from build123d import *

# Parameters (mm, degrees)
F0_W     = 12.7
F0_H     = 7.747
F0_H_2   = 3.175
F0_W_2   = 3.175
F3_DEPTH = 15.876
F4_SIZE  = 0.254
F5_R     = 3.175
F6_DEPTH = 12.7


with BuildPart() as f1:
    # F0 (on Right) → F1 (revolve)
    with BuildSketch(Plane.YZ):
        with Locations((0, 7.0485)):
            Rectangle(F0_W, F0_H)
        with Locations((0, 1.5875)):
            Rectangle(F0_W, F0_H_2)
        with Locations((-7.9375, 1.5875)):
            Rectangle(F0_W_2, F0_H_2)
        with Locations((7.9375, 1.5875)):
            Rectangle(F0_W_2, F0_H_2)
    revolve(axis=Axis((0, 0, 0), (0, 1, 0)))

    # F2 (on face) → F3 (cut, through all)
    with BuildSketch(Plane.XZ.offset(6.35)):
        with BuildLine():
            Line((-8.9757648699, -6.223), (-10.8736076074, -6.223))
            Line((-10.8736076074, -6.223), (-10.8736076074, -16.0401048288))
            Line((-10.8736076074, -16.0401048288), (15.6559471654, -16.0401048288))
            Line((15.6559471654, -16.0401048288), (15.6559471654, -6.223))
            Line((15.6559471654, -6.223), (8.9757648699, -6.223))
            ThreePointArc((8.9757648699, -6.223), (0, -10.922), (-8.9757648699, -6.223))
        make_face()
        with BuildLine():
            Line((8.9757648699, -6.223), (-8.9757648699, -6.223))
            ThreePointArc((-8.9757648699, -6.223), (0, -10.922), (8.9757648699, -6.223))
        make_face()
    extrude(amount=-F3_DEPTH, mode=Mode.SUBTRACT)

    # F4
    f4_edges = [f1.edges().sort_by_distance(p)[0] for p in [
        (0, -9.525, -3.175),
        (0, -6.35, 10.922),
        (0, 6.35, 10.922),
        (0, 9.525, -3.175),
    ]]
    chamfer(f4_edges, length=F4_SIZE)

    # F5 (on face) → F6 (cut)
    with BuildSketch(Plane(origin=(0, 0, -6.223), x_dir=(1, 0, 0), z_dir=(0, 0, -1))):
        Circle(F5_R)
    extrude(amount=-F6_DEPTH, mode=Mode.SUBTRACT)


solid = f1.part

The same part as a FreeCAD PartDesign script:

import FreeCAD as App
import Part
import Sketcher

V = App.Vector
Q = App.Units.Quantity


def edges_at(feature, points):
    """Names of the edges that pass closest to the given points."""
    edges = feature.Shape.Edges
    near = lambda p: min(range(len(edges)), key=lambda i: edges[i].distToShape(Part.Vertex(*p))[0])
    return sorted({f"Edge{near(p) + 1}" for p in points})

doc = App.newDocument("Part")
params = doc.addObject("Spreadsheet::Sheet", "Params")
for row, (alias, value) in enumerate([
    ("sketch1_width", "0.5 in"),
    ("sketch1_width2", "0.75 in"),
    ("sketch1_height", "0.305 in"),
    ("revolution_angle", "360 deg"),
    ("chamfer_size", "0.01 in"),
    ("sketch3_diameter", "0.25 in"),
    ("pocket2_length", "0.5 in"),
], start=1):
    params.set(f"A{row}", alias)
    params.set(f"B{row}", "=" + value)
    params.setAlias(f"B{row}", alias)

body = doc.addObject("PartDesign::Body", "Body")

# Sketch on YZ plane
sketch1 = body.newObject("Sketcher::SketchObject", "Sketch")
sketch1.AttachmentSupport = (doc.getObject("YZ_Plane"), [""])
sketch1.MapMode = "FlatFace"
sketch1.addGeometry([
    Part.LineSegment(V(-6.3, 10.9, 0), V(-6.3, 3.2, 0)),  # 0
    Part.LineSegment(V(-6.3, 3.2, 0), V(-9.5, 3.2, 0)),  # 1
    Part.LineSegment(V(-9.5, 3.2, 0), V(-9.5, 0, 0)),  # 2
    Part.LineSegment(V(-9.5, 0, 0), V(9.5, 0, 0)),  # 3
    Part.LineSegment(V(9.5, 0, 0), V(9.5, 3.2, 0)),  # 4
    Part.LineSegment(V(9.5, 3.2, 0), V(6.3, 3.2, 0)),  # 5
    Part.LineSegment(V(6.3, 3.2, 0), V(6.3, 10.9, 0)),  # 6
    Part.LineSegment(V(6.3, 10.9, 0), V(-6.3, 10.9, 0)),  # 7
], False)
sketch1.addConstraint([
    Sketcher.Constraint("Coincident", 0, 2, 1, 1),
    Sketcher.Constraint("Coincident", 1, 2, 2, 1),
    Sketcher.Constraint("Coincident", 2, 2, 3, 1),
    Sketcher.Constraint("Coincident", 3, 2, 4, 1),
    Sketcher.Constraint("Coincident", 4, 2, 5, 1),
    Sketcher.Constraint("Coincident", 5, 2, 6, 1),
    Sketcher.Constraint("Coincident", 6, 2, 7, 1),
    Sketcher.Constraint("Coincident", 7, 2, 0, 1),
    Sketcher.Constraint("Vertical", 0),
    Sketcher.Constraint("Horizontal", 1),
    Sketcher.Constraint("Vertical", 2),
    Sketcher.Constraint("Horizontal", 3),
    Sketcher.Constraint("Vertical", 4),
    Sketcher.Constraint("Horizontal", 5),
    Sketcher.Constraint("Vertical", 6),
    Sketcher.Constraint("Horizontal", 7),
    Sketcher.Constraint("Symmetric", 2, 2, 3, 2, -1, 1),
    Sketcher.Constraint("Symmetric", 0, 2, 5, 2, -2),
    Sketcher.Constraint("Equal", 5, 2),
    Sketcher.Constraint("DistanceX", 7, 2, 7, 1, Q("0.5 in")),
    Sketcher.Constraint("DistanceX", 3, 1, 3, 2, Q("0.75 in")),
    Sketcher.Constraint("DistanceY", 0, 2, 0, 1, Q("0.305 in")),
])
sketch1.setExpression("Constraints[19]", "Params.sketch1_width")
sketch1.setExpression("Constraints[20]", "Params.sketch1_width2")
sketch1.setExpression("Constraints[21]", "Params.sketch1_height")
revolution = body.newObject("PartDesign::Revolution", "Revolution")
revolution.Profile = sketch1
revolution.ReferenceAxis = (sketch1, ["H_Axis"])
revolution.setExpression("Angle", "Params.revolution_angle")

# Sketch on XZ plane
sketch2 = body.newObject("Sketcher::SketchObject", "Sketch001")
sketch2.AttachmentSupport = (doc.getObject("XZ_Plane"), [""])
sketch2.MapMode = "FlatFace"
sketch2.AttachmentOffset = App.Placement(V(0, 0, 0.25 * 25.4), App.Rotation())
sketch2.addGeometry([
    Part.LineSegment(V(-11, -6, 0), V(-11, -16, 0)),
    Part.LineSegment(V(-11, -16, 0), V(16, -16, 0)),
    Part.LineSegment(V(16, -16, 0), V(16, -6, 0)),
    Part.LineSegment(V(16, -6, 0), V(-11, -6, 0)),
], False)
sketch2.addConstraint([
    Sketcher.Constraint("Coincident", 0, 2, 1, 1),
    Sketcher.Constraint("Coincident", 1, 2, 2, 1),
    Sketcher.Constraint("Coincident", 2, 2, 3, 1),
    Sketcher.Constraint("Coincident", 3, 2, 0, 1),
    Sketcher.Constraint("Vertical", 0),
    Sketcher.Constraint("Horizontal", 1),
    Sketcher.Constraint("Vertical", 2),
    Sketcher.Constraint("Horizontal", 3),
    Sketcher.Constraint("DistanceY", 0, 2, 0, 1, Q("0.3865002 in")),
    Sketcher.Constraint("DistanceY", 2, 2, -1, 1, Q("0.245 in")),
    Sketcher.Constraint("DistanceX", 1, 1, 1, 2, 26.529555),
    Sketcher.Constraint("DistanceX", 0, 2, -1, 1, 10.873608),
])
pocket1 = body.newObject("PartDesign::Pocket", "Pocket")
pocket1.Profile = sketch2
pocket1.Type = "ThroughAll"
doc.recompute()

chamfer = body.newObject("PartDesign::Chamfer", "Chamfer")
chamfer.Base = (pocket1, edges_at(pocket1, [
    (0, -9.525, -3.175),
    (0, -6.35, 10.922),
    (0, 6.35, 10.922),
    (0, 9.525, -3.175),
]))
chamfer.setExpression("Size", "Params.chamfer_size")

# Sketch on XY plane
sketch3 = body.newObject("Sketcher::SketchObject", "Sketch002")
sketch3.AttachmentSupport = (doc.getObject("XY_Plane"), [""])
sketch3.MapMode = "FlatFace"
sketch3.AttachmentOffset = App.Placement(V(0, 0, -0.245 * 25.4), App.Rotation())
sketch3.addGeometry(Part.Circle(V(0, 0, 0), V(0, 0, 1), 3.2), False)
sketch3.addConstraint([
    Sketcher.Constraint("Coincident", 0, 3, -1, 1),
    Sketcher.Constraint("Diameter", 0, Q("0.25 in")),
])
sketch3.setExpression("Constraints[1]", "Params.sketch3_diameter")
pocket2 = body.newObject("PartDesign::Pocket", "Pocket001")
pocket2.Profile = sketch3
pocket2.setExpression("Length", "Params.pocket2_length")
pocket2.Reversed = True

doc.recompute()
